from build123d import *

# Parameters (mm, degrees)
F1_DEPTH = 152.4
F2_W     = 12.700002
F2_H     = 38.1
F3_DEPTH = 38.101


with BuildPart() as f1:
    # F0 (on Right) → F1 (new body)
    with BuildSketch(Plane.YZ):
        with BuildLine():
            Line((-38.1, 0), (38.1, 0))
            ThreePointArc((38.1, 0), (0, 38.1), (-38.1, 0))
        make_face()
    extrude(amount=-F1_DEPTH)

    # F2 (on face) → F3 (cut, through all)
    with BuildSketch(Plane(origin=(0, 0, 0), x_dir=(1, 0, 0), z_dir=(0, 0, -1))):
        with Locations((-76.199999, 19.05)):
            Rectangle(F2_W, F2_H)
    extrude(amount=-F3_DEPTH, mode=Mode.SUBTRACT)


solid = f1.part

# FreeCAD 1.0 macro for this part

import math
import FreeCAD as App
import Part
import Sketcher
from FreeCAD import Vector
Q = App.Units.Quantity


def add_polygon(sketch, points):
    """Adds a closed chain of lines whose ends are joined by coincident constraints."""
    first, n = sketch.GeometryCount, len(points)
    for a, b in zip(points, points[1:] + points[:1]):
        sketch.addGeometry(Part.LineSegment(App.Vector(*a, 0), App.Vector(*b, 0)), False)
    for i in range(n):
        sketch.addConstraint(Sketcher.Constraint("Coincident", first + i, 2, first + (i + 1) % n, 1))

doc = App.newDocument("Part")
body = doc.addObject("PartDesign::Body", "Body")

# Sketch on YZ plane
sketch1 = body.newObject("Sketcher::SketchObject", "Sketch")
sketch1.AttachmentSupport = (doc.getObject("YZ_Plane"), [""])
sketch1.MapMode = "FlatFace"
sketch1.addGeometry([
    Part.LineSegment(Vector(-38, 0, 0), Vector(38, 0, 0)),
    Part.ArcOfCircle(Part.Circle(Vector(0, 0, 0), Vector(0, 0, 1), 38), math.radians(0), math.radians(180)),
], False)
sketch1.addConstraint([
    Sketcher.Constraint("Coincident", 0, 1, 1, 2),
    Sketcher.Constraint("Coincident", 1, 1, 0, 2),
    Sketcher.Constraint("Horizontal", 0),
    Sketcher.Constraint("Coincident", 1, 3, -1, 1),
    Sketcher.Constraint("PointOnObject", 0, 1, -1),
    Sketcher.Constraint("Radius", 1, Q("1.5 in")),
])
pad1 = body.newObject("PartDesign::Pad", "Pad")
pad1.Profile = sketch1
pad1.Length = Q("6 in")
pad1.Reversed = True

# Sketch on XY plane
sketch2 = body.newObject("Sketcher::SketchObject", "Sketch001")
sketch2.AttachmentSupport = (doc.getObject("XY_Plane"), [""])
sketch2.MapMode = "FlatFace"
add_polygon(sketch2, [(-83, -38), (-83, 0), (-70, 0), (-70, -38)])  # lines 0-3
sketch2.addConstraint([
    Sketcher.Constraint("Vertical", 0),
    Sketcher.Constraint("Horizontal", 1),
    Sketcher.Constraint("Vertical", 2),
    Sketcher.Constraint("Horizontal", 3),
    Sketcher.Constraint("PointOnObject", 0, 2, -1),
    Sketcher.Constraint("DistanceX", 1, 1, 1, 2, Q("0.5000001 in")),
    Sketcher.Constraint("DistanceY", 0, 1, 0, 2, Q("1.5 in")),
    Sketcher.Constraint("DistanceX", 0, 2, -1, 1, Q("3.25 in")),
])
pocket1 = body.newObject("PartDesign::Pocket", "Pocket")
pocket1.Profile = sketch2
pocket1.Type = "ThroughAll"
pocket1.Reversed = True

doc.recompute()
